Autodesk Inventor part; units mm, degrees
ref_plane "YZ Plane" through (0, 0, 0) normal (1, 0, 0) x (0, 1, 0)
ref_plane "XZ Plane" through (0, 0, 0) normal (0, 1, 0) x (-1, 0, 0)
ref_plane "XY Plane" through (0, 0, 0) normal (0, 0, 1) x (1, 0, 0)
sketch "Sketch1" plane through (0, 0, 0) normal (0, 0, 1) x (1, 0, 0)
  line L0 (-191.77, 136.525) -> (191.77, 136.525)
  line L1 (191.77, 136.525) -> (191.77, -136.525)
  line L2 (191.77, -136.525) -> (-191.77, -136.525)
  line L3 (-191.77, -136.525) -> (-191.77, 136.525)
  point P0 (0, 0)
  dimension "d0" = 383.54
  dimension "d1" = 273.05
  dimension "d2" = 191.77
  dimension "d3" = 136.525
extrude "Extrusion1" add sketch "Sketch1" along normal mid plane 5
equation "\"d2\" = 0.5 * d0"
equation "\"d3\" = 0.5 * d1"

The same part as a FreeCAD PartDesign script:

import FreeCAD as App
import Part
import Sketcher
Q = App.Units.Quantity

doc = App.newDocument("Part")
body = doc.addObject("PartDesign::Body", "Body")

# Sketch on XY plane
sketch1 = doc.addObject("Sketcher::SketchObject", "Sketch")
body.addObject(sketch1)
sketch1.AttachmentSupport = (doc.XY_Plane, [""])
sketch1.MapMode = "FlatFace"
sketch1.addGeometry([
    Part.LineSegment(App.Vector(192, 137, 0), App.Vector(-192, 137, 0)),
    Part.LineSegment(App.Vector(-192, 137, 0), App.Vector(-192, -137, 0)),
    Part.LineSegment(App.Vector(-192, -137, 0), App.Vector(192, -137, 0)),
    Part.LineSegment(App.Vector(192, -137, 0), App.Vector(192, 137, 0)),
], False)
sketch1.addConstraint([
    Sketcher.Constraint("Coincident", 0, 2, 1, 1),
    Sketcher.Constraint("Coincident", 1, 2, 2, 1),
    Sketcher.Constraint("Coincident", 2, 2, 3, 1),
    Sketcher.Constraint("Coincident", 3, 2, 0, 1),
    Sketcher.Constraint("Horizontal", 0),
    Sketcher.Constraint("Vertical", 1),
    Sketcher.Constraint("Horizontal", 2),
    Sketcher.Constraint("Vertical", 3),
    Sketcher.Constraint("Symmetric", 0, 2, 2, 2, -1, 1),
    Sketcher.Constraint("DistanceX", 0, 2, 0, 1, Q("15.1 in")),
    Sketcher.Constraint("DistanceY", 1, 2, 1, 1, Q("10.75 in")),
])
pad1 = doc.addObject("PartDesign::Pad", "Pad")
body.addObject(pad1)
pad1.Profile = sketch1
pad1.Length = 5
pad1.Midplane = True

doc.recompute()
